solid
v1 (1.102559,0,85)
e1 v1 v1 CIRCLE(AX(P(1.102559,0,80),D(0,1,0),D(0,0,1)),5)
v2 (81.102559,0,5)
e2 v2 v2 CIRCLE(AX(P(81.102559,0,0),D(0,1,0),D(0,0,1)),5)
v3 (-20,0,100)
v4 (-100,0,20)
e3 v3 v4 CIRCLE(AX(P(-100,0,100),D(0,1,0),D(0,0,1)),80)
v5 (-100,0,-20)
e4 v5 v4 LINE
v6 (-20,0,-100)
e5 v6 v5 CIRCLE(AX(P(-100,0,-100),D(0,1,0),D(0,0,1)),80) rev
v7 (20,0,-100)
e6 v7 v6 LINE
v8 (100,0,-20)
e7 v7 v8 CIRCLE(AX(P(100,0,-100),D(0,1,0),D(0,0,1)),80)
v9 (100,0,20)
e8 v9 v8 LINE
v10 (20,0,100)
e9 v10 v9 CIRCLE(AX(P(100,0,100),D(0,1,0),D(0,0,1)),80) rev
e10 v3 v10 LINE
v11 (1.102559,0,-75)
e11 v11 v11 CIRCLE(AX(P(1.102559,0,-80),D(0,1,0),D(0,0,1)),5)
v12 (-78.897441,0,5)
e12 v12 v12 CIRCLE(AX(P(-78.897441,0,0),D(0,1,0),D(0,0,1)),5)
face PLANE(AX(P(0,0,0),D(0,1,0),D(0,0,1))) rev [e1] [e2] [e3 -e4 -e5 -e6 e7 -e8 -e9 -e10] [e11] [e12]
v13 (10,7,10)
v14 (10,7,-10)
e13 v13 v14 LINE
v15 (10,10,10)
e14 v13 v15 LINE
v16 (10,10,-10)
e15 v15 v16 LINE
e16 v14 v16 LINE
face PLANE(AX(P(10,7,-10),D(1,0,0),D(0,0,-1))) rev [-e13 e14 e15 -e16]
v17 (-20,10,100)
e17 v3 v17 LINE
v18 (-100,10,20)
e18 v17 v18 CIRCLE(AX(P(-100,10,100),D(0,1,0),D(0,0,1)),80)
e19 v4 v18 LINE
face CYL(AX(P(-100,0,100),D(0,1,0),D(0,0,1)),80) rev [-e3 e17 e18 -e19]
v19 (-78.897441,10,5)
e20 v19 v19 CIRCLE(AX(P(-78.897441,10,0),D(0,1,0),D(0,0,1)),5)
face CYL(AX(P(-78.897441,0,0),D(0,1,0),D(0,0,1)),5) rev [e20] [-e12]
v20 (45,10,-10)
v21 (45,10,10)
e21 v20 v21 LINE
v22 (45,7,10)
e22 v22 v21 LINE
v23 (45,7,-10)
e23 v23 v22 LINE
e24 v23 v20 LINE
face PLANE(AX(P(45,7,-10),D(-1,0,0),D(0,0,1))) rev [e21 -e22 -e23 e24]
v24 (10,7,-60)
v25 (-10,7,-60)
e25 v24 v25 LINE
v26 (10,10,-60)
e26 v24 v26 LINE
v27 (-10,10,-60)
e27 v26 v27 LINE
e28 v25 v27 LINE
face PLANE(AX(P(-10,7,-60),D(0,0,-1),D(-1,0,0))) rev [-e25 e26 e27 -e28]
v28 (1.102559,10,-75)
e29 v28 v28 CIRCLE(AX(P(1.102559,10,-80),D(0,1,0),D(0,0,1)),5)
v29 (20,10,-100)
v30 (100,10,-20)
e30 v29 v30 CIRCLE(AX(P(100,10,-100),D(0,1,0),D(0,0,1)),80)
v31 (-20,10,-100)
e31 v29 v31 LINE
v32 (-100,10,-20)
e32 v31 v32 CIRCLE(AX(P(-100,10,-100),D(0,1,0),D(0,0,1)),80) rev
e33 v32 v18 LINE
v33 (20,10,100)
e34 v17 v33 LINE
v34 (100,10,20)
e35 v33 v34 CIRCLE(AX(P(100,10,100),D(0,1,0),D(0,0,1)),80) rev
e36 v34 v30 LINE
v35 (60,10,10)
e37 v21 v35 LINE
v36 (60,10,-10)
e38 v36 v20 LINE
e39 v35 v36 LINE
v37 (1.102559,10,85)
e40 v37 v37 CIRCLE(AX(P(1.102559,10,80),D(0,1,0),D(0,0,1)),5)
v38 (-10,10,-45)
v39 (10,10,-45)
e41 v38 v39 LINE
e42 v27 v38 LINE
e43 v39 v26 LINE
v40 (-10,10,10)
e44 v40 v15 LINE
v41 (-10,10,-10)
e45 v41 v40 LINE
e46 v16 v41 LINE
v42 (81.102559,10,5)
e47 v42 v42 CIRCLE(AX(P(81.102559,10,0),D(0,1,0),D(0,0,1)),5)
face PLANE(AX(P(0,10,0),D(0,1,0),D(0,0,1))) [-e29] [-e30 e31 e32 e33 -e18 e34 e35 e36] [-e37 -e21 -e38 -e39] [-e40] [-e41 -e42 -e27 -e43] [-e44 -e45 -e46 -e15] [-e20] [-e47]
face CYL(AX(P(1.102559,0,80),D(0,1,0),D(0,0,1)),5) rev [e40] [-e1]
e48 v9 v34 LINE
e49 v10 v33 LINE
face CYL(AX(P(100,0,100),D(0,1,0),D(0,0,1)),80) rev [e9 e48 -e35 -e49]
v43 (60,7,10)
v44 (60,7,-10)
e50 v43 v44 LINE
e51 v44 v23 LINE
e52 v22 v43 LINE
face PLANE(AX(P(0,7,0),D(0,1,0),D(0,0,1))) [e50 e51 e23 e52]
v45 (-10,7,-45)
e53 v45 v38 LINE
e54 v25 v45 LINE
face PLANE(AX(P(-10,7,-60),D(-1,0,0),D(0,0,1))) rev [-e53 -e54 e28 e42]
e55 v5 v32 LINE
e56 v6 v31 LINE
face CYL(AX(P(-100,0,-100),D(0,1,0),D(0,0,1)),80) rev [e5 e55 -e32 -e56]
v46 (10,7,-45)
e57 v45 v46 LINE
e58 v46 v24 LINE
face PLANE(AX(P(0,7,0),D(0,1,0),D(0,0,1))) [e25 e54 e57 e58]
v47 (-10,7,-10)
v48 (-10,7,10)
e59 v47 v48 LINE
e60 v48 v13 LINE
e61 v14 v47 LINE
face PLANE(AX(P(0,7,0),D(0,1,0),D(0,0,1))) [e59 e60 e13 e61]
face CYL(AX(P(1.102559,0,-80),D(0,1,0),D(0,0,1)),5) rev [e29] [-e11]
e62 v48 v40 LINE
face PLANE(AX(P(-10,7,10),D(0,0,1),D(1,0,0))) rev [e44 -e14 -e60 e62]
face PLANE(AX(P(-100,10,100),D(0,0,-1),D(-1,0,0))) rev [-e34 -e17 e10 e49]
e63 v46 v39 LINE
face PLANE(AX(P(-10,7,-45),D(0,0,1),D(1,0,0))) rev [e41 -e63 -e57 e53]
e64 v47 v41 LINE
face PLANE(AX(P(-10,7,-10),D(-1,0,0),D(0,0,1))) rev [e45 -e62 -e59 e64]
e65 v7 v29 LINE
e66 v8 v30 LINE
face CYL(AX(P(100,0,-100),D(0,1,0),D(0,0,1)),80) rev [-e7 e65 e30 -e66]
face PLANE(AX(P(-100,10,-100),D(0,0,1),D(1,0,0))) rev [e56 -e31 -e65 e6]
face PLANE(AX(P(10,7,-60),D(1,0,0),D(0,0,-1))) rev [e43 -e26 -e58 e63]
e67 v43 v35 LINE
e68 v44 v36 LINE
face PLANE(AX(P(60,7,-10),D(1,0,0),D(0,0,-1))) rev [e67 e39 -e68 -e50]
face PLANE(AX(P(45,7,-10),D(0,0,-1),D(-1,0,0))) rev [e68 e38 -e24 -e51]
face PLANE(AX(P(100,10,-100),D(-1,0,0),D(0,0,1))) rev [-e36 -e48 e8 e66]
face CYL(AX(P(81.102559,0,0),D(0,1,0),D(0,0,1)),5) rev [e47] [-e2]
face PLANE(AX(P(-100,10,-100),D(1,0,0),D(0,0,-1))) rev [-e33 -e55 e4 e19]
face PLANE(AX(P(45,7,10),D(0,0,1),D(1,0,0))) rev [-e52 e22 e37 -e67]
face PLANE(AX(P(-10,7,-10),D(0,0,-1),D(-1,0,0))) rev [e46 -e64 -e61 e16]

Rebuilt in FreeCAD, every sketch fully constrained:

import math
import FreeCAD as App
import Part
import Sketcher

doc = App.newDocument("Part")
body = doc.addObject("PartDesign::Body", "Body")

# Sketch on XZ plane
sketch1 = body.newObject("Sketcher::SketchObject", "Sketch")
sketch1.AttachmentSupport = (doc.getObject("XZ_Plane"), [""])
sketch1.MapMode = "FlatFace"
sketch1.addGeometry(Part.LineSegment(App.Vector(-100, -100, 0), App.Vector(-100, 100, 0)), False)
sketch1.addGeometry(Part.LineSegment(App.Vector(-100, 100, 0), App.Vector(100, 100, 0)), False)
sketch1.addGeometry(Part.LineSegment(App.Vector(100, 100, 0), App.Vector(100, -100, 0)), False)
sketch1.addGeometry(Part.LineSegment(App.Vector(100, -100, 0), App.Vector(-100, -100, 0)), False)
sketch1.addConstraint(Sketcher.Constraint("Coincident", 0, 2, 1, 1))
sketch1.addConstraint(Sketcher.Constraint("Coincident", 1, 2, 2, 1))
sketch1.addConstraint(Sketcher.Constraint("Coincident", 2, 2, 3, 1))
sketch1.addConstraint(Sketcher.Constraint("Coincident", 3, 2, 0, 1))
sketch1.addConstraint(Sketcher.Constraint("Vertical", 0))
sketch1.addConstraint(Sketcher.Constraint("Horizontal", 1))
sketch1.addConstraint(Sketcher.Constraint("Vertical", 2))
sketch1.addConstraint(Sketcher.Constraint("Horizontal", 3))
sketch1.addConstraint(Sketcher.Constraint("Symmetric", 0, 2, 2, 2, -1, 1))
sketch1.addConstraint(Sketcher.Constraint("Equal", 3, 0))
sketch1.addConstraint(Sketcher.Constraint("DistanceX", 1, 1, 1, 2, 200.0))
pad1 = body.newObject("PartDesign::Pad", "Pad")
pad1.Profile = sketch1
pad1.Length = 10
pad1.Reversed = True

# Sketch on XZ plane
sketch2 = body.newObject("Sketcher::SketchObject", "Sketch001")
sketch2.AttachmentSupport = (doc.getObject("XZ_Plane"), [""])
sketch2.MapMode = "FlatFace"
sketch2.AttachmentOffset = App.Placement(App.Vector(0, 0, -10), App.Rotation())
sketch2.addGeometry(Part.LineSegment(App.Vector(-10, -10, 0), App.Vector(-10, 10, 0)), False)
sketch2.addGeometry(Part.LineSegment(App.Vector(-10, 10, 0), App.Vector(10, 10, 0)), False)
sketch2.addGeometry(Part.LineSegment(App.Vector(10, 10, 0), App.Vector(10, -10, 0)), False)
sketch2.addGeometry(Part.LineSegment(App.Vector(10, -10, 0), App.Vector(-10, -10, 0)), False)
sketch2.addGeometry(Part.LineSegment(App.Vector(-10, -60, 0), App.Vector(-10, -45, 0)), False)
sketch2.addGeometry(Part.LineSegment(App.Vector(-10, -45, 0), App.Vector(10, -45, 0)), False)
sketch2.addGeometry(Part.LineSegment(App.Vector(10, -45, 0), App.Vector(10, -60, 0)), False)
sketch2.addGeometry(Part.LineSegment(App.Vector(10, -60, 0), App.Vector(-10, -60, 0)), False)
sketch2.addGeometry(Part.LineSegment(App.Vector(45, -10, 0), App.Vector(45, 10, 0)), False)
sketch2.addGeometry(Part.LineSegment(App.Vector(45, 10, 0), App.Vector(60, 10, 0)), False)
sketch2.addGeometry(Part.LineSegment(App.Vector(60, 10, 0), App.Vector(60, -10, 0)), False)
sketch2.addGeometry(Part.LineSegment(App.Vector(60, -10, 0), App.Vector(45, -10, 0)), False)
sketch2.addConstraint(Sketcher.Constraint("Coincident", 0, 2, 1, 1))
sketch2.addConstraint(Sketcher.Constraint("Coincident", 1, 2, 2, 1))
sketch2.addConstraint(Sketcher.Constraint("Coincident", 2, 2, 3, 1))
sketch2.addConstraint(Sketcher.Constraint("Coincident", 3, 2, 0, 1))
sketch2.addConstraint(Sketcher.Constraint("Coincident", 4, 2, 5, 1))
sketch2.addConstraint(Sketcher.Constraint("Coincident", 5, 2, 6, 1))
sketch2.addConstraint(Sketcher.Constraint("Coincident", 6, 2, 7, 1))
sketch2.addConstraint(Sketcher.Constraint("Coincident", 7, 2, 4, 1))
sketch2.addConstraint(Sketcher.Constraint("Coincident", 8, 2, 9, 1))
sketch2.addConstraint(Sketcher.Constraint("Coincident", 9, 2, 10, 1))
sketch2.addConstraint(Sketcher.Constraint("Coincident", 10, 2, 11, 1))
sketch2.addConstraint(Sketcher.Constraint("Coincident", 11, 2, 8, 1))
sketch2.addConstraint(Sketcher.Constraint("Vertical", 0))
sketch2.addConstraint(Sketcher.Constraint("Horizontal", 1))
sketch2.addConstraint(Sketcher.Constraint("Vertical", 2))
sketch2.addConstraint(Sketcher.Constraint("Horizontal", 3))
sketch2.addConstraint(Sketcher.Constraint("Vertical", 4))
sketch2.addConstraint(Sketcher.Constraint("Horizontal", 5))
sketch2.addConstraint(Sketcher.Constraint("Vertical", 6))
sketch2.addConstraint(Sketcher.Constraint("Horizontal", 7))
sketch2.addConstraint(Sketcher.Constraint("Vertical", 8))
sketch2.addConstraint(Sketcher.Constraint("Horizontal", 9))
sketch2.addConstraint(Sketcher.Constraint("Vertical", 10))
sketch2.addConstraint(Sketcher.Constraint("Horizontal", 11))
sketch2.addConstraint(Sketcher.Constraint("Symmetric", 0, 2, 2, 2, -1, 1))
sketch2.addConstraint(Sketcher.Constraint("Horizontal", 1, 2, 8, 2))
sketch2.addConstraint(Sketcher.Constraint("Horizontal", 3, 2, 10, 2))
sketch2.addConstraint(Sketcher.Constraint("Vertical", 3, 2, 4, 2))
sketch2.addConstraint(Sketcher.Constraint("Vertical", 2, 2, 5, 2))
sketch2.addConstraint(Sketcher.Constraint("Equal", 7, 0))
sketch2.addConstraint(Sketcher.Constraint("Equal", 11, 4))
sketch2.addConstraint(Sketcher.Constraint("DistanceX", 1, 1, 1, 2, 20.0))
sketch2.addConstraint(Sketcher.Constraint("DistanceX", 9, 1, 9, 2, 15.0))
sketch2.addConstraint(Sketcher.Constraint("DistanceY", 4, 2, -1, 1, 45.0))
sketch2.addConstraint(Sketcher.Constraint("DistanceX", -1, 1, 8, 2, 45.0))
pocket1 = body.newObject("PartDesign::Pocket", "Pocket")
pocket1.Profile = sketch2
pocket1.Length = 3
pocket1.Reversed = True

# Sketch on XZ plane
sketch3 = body.newObject("Sketcher::SketchObject", "Sketch002")
sketch3.AttachmentSupport = (doc.getObject("XZ_Plane"), [""])
sketch3.MapMode = "FlatFace"
sketch3.AttachmentOffset = App.Placement(App.Vector(0, 0, -10), App.Rotation())
sketch3.addGeometry(Part.LineSegment(App.Vector(100, -100, 0), App.Vector(20, -100, 0)), False)
sketch3.addGeometry(Part.ArcOfCircle(Part.Circle(App.Vector(100, -100, 0), App.Vector(0, 0, 1), 80), math.radians(90), math.radians(180)), False)
sketch3.addGeometry(Part.LineSegment(App.Vector(100, -20, 0), App.Vector(100, -100, 0)), False)
sketch3.addGeometry(Part.ArcOfCircle(Part.Circle(App.Vector(-100, -100, 0), App.Vector(0, 0, 1), 80), math.radians(0), math.radians(90)), False)
sketch3.addGeometry(Part.LineSegment(App.Vector(-20, -100, 0), App.Vector(-100, -100, 0)), False)
sketch3.addGeometry(Part.LineSegment(App.Vector(-100, -100, 0), App.Vector(-100, -20, 0)), False)
sketch3.addGeometry(Part.ArcOfCircle(Part.Circle(App.Vector(-100, 100, 0), App.Vector(0, 0, 1), 80), math.radians(-90), math.radians(0)), False)
sketch3.addGeometry(Part.LineSegment(App.Vector(-100, 20, 0), App.Vector(-100, 100, 0)), False)
sketch3.addGeometry(Part.LineSegment(App.Vector(-100, 100, 0), App.Vector(-20, 100, 0)), False)
sketch3.addGeometry(Part.LineSegment(App.Vector(100, 100, 0), App.Vector(100, 20, 0)), False)
sketch3.addGeometry(Part.ArcOfCircle(Part.Circle(App.Vector(100, 100, 0), App.Vector(0, 0, 1), 80), math.radians(180), math.radians(270)), False)
sketch3.addGeometry(Part.LineSegment(App.Vector(20, 100, 0), App.Vector(100, 100, 0)), False)
sketch3.addConstraint(Sketcher.Constraint("Coincident", 0, 2, 1, 2))
sketch3.addConstraint(Sketcher.Constraint("Coincident", 1, 1, 2, 1))
sketch3.addConstraint(Sketcher.Constraint("Coincident", 2, 2, 0, 1))
sketch3.addConstraint(Sketcher.Constraint("Coincident", 3, 1, 4, 1))
sketch3.addConstraint(Sketcher.Constraint("Coincident", 4, 2, 5, 1))
sketch3.addConstraint(Sketcher.Constraint("Coincident", 5, 2, 3, 2))
sketch3.addConstraint(Sketcher.Constraint("Coincident", 6, 1, 7, 1))
sketch3.addConstraint(Sketcher.Constraint("Coincident", 7, 2, 8, 1))
sketch3.addConstraint(Sketcher.Constraint("Coincident", 8, 2, 6, 2))
sketch3.addConstraint(Sketcher.Constraint("Coincident", 9, 2, 10, 2))
sketch3.addConstraint(Sketcher.Constraint("Coincident", 10, 1, 11, 1))
sketch3.addConstraint(Sketcher.Constraint("Coincident", 11, 2, 9, 1))
sketch3.addConstraint(Sketcher.Constraint("Horizontal", 0))
sketch3.addConstraint(Sketcher.Constraint("Vertical", 2))
sketch3.addConstraint(Sketcher.Constraint("Horizontal", 4))
sketch3.addConstraint(Sketcher.Constraint("Vertical", 5))
sketch3.addConstraint(Sketcher.Constraint("Vertical", 7))
sketch3.addConstraint(Sketcher.Constraint("Horizontal", 8))
sketch3.addConstraint(Sketcher.Constraint("Vertical", 9))
sketch3.addConstraint(Sketcher.Constraint("Horizontal", 11))
sketch3.addConstraint(Sketcher.Constraint("Coincident", 2, 2, 1, 3))
sketch3.addConstraint(Sketcher.Constraint("Coincident", 4, 2, 3, 3))
sketch3.addConstraint(Sketcher.Constraint("Coincident", 7, 2, 6, 3))
sketch3.addConstraint(Sketcher.Constraint("Coincident", 11, 2, 10, 3))
sketch3.addConstraint(Sketcher.Constraint("Equal", 1, 3))
sketch3.addConstraint(Sketcher.Constraint("Equal", 3, 6))
sketch3.addConstraint(Sketcher.Constraint("Equal", 6, 10))
sketch3.addConstraint(Sketcher.Constraint("Symmetric", 1, 3, 6, 3, -1, 1))
sketch3.addConstraint(Sketcher.Constraint("Symmetric", 3, 3, 10, 3, -1, 1))
sketch3.addConstraint(Sketcher.Constraint("Symmetric", 1, 3, 3, 3, -2))
sketch3.addConstraint(Sketcher.Constraint("Radius", 1, 80.0))
sketch3.addConstraint(Sketcher.Constraint("DistanceX", -1, 1, 1, 3, 100.0))
sketch3.addConstraint(Sketcher.Constraint("DistanceY", 1, 3, -1, 1, 100.0))
pocket2 = body.newObject("PartDesign::Pocket", "Pocket001")
pocket2.Profile = sketch3
pocket2.Length = 10
pocket2.Reversed = True

# Sketch on XZ plane
sketch4 = body.newObject("Sketcher::SketchObject", "Sketch003")
sketch4.AttachmentSupport = (doc.getObject("XZ_Plane"), [""])
sketch4.MapMode = "FlatFace"
sketch4.AttachmentOffset = App.Placement(App.Vector(0, 0, -10), App.Rotation())
sketch4.addGeometry(Part.Circle(App.Vector(-79, 0, 0), App.Vector(0, 0, 1), 5), False)
sketch4.addGeometry(Part.Circle(App.Vector(1, -80, 0), App.Vector(0, 0, 1), 5), False)
sketch4.addGeometry(Part.Circle(App.Vector(81, 0, 0), App.Vector(0, 0, 1), 5), False)
sketch4.addGeometry(Part.Circle(App.Vector(1, 80, 0), App.Vector(0, 0, 1), 5), False)
sketch4.addConstraint(Sketcher.Constraint("Equal", 0, 1))
sketch4.addConstraint(Sketcher.Constraint("Equal", 1, 2))
sketch4.addConstraint(Sketcher.Constraint("Equal", 2, 3))
sketch4.addConstraint(Sketcher.Constraint("Symmetric", 1, 3, 3, 3, -1))
sketch4.addConstraint(Sketcher.Constraint("PointOnObject", 0, 3, -1))
sketch4.addConstraint(Sketcher.Constraint("PointOnObject", 2, 3, -1))
sketch4.addConstraint(Sketcher.Constraint("Diameter", 0, 10.0))
sketch4.addConstraint(Sketcher.Constraint("DistanceY", 1, 3, -1, 1, 80.0))
sketch4.addConstraint(Sketcher.Constraint("DistanceX", 0, 3, 1, 3, 80.0))
sketch4.addConstraint(Sketcher.Constraint("DistanceX", 1, 3, 2, 3, 80.0))
sketch4.addConstraint(Sketcher.Constraint("DistanceX", 0, 3, -1, 1, 78.897441))
pocket3 = body.newObject("PartDesign::Pocket", "Pocket002")
pocket3.Profile = sketch4
pocket3.Length = 10
pocket3.Reversed = True

doc.recompute()
